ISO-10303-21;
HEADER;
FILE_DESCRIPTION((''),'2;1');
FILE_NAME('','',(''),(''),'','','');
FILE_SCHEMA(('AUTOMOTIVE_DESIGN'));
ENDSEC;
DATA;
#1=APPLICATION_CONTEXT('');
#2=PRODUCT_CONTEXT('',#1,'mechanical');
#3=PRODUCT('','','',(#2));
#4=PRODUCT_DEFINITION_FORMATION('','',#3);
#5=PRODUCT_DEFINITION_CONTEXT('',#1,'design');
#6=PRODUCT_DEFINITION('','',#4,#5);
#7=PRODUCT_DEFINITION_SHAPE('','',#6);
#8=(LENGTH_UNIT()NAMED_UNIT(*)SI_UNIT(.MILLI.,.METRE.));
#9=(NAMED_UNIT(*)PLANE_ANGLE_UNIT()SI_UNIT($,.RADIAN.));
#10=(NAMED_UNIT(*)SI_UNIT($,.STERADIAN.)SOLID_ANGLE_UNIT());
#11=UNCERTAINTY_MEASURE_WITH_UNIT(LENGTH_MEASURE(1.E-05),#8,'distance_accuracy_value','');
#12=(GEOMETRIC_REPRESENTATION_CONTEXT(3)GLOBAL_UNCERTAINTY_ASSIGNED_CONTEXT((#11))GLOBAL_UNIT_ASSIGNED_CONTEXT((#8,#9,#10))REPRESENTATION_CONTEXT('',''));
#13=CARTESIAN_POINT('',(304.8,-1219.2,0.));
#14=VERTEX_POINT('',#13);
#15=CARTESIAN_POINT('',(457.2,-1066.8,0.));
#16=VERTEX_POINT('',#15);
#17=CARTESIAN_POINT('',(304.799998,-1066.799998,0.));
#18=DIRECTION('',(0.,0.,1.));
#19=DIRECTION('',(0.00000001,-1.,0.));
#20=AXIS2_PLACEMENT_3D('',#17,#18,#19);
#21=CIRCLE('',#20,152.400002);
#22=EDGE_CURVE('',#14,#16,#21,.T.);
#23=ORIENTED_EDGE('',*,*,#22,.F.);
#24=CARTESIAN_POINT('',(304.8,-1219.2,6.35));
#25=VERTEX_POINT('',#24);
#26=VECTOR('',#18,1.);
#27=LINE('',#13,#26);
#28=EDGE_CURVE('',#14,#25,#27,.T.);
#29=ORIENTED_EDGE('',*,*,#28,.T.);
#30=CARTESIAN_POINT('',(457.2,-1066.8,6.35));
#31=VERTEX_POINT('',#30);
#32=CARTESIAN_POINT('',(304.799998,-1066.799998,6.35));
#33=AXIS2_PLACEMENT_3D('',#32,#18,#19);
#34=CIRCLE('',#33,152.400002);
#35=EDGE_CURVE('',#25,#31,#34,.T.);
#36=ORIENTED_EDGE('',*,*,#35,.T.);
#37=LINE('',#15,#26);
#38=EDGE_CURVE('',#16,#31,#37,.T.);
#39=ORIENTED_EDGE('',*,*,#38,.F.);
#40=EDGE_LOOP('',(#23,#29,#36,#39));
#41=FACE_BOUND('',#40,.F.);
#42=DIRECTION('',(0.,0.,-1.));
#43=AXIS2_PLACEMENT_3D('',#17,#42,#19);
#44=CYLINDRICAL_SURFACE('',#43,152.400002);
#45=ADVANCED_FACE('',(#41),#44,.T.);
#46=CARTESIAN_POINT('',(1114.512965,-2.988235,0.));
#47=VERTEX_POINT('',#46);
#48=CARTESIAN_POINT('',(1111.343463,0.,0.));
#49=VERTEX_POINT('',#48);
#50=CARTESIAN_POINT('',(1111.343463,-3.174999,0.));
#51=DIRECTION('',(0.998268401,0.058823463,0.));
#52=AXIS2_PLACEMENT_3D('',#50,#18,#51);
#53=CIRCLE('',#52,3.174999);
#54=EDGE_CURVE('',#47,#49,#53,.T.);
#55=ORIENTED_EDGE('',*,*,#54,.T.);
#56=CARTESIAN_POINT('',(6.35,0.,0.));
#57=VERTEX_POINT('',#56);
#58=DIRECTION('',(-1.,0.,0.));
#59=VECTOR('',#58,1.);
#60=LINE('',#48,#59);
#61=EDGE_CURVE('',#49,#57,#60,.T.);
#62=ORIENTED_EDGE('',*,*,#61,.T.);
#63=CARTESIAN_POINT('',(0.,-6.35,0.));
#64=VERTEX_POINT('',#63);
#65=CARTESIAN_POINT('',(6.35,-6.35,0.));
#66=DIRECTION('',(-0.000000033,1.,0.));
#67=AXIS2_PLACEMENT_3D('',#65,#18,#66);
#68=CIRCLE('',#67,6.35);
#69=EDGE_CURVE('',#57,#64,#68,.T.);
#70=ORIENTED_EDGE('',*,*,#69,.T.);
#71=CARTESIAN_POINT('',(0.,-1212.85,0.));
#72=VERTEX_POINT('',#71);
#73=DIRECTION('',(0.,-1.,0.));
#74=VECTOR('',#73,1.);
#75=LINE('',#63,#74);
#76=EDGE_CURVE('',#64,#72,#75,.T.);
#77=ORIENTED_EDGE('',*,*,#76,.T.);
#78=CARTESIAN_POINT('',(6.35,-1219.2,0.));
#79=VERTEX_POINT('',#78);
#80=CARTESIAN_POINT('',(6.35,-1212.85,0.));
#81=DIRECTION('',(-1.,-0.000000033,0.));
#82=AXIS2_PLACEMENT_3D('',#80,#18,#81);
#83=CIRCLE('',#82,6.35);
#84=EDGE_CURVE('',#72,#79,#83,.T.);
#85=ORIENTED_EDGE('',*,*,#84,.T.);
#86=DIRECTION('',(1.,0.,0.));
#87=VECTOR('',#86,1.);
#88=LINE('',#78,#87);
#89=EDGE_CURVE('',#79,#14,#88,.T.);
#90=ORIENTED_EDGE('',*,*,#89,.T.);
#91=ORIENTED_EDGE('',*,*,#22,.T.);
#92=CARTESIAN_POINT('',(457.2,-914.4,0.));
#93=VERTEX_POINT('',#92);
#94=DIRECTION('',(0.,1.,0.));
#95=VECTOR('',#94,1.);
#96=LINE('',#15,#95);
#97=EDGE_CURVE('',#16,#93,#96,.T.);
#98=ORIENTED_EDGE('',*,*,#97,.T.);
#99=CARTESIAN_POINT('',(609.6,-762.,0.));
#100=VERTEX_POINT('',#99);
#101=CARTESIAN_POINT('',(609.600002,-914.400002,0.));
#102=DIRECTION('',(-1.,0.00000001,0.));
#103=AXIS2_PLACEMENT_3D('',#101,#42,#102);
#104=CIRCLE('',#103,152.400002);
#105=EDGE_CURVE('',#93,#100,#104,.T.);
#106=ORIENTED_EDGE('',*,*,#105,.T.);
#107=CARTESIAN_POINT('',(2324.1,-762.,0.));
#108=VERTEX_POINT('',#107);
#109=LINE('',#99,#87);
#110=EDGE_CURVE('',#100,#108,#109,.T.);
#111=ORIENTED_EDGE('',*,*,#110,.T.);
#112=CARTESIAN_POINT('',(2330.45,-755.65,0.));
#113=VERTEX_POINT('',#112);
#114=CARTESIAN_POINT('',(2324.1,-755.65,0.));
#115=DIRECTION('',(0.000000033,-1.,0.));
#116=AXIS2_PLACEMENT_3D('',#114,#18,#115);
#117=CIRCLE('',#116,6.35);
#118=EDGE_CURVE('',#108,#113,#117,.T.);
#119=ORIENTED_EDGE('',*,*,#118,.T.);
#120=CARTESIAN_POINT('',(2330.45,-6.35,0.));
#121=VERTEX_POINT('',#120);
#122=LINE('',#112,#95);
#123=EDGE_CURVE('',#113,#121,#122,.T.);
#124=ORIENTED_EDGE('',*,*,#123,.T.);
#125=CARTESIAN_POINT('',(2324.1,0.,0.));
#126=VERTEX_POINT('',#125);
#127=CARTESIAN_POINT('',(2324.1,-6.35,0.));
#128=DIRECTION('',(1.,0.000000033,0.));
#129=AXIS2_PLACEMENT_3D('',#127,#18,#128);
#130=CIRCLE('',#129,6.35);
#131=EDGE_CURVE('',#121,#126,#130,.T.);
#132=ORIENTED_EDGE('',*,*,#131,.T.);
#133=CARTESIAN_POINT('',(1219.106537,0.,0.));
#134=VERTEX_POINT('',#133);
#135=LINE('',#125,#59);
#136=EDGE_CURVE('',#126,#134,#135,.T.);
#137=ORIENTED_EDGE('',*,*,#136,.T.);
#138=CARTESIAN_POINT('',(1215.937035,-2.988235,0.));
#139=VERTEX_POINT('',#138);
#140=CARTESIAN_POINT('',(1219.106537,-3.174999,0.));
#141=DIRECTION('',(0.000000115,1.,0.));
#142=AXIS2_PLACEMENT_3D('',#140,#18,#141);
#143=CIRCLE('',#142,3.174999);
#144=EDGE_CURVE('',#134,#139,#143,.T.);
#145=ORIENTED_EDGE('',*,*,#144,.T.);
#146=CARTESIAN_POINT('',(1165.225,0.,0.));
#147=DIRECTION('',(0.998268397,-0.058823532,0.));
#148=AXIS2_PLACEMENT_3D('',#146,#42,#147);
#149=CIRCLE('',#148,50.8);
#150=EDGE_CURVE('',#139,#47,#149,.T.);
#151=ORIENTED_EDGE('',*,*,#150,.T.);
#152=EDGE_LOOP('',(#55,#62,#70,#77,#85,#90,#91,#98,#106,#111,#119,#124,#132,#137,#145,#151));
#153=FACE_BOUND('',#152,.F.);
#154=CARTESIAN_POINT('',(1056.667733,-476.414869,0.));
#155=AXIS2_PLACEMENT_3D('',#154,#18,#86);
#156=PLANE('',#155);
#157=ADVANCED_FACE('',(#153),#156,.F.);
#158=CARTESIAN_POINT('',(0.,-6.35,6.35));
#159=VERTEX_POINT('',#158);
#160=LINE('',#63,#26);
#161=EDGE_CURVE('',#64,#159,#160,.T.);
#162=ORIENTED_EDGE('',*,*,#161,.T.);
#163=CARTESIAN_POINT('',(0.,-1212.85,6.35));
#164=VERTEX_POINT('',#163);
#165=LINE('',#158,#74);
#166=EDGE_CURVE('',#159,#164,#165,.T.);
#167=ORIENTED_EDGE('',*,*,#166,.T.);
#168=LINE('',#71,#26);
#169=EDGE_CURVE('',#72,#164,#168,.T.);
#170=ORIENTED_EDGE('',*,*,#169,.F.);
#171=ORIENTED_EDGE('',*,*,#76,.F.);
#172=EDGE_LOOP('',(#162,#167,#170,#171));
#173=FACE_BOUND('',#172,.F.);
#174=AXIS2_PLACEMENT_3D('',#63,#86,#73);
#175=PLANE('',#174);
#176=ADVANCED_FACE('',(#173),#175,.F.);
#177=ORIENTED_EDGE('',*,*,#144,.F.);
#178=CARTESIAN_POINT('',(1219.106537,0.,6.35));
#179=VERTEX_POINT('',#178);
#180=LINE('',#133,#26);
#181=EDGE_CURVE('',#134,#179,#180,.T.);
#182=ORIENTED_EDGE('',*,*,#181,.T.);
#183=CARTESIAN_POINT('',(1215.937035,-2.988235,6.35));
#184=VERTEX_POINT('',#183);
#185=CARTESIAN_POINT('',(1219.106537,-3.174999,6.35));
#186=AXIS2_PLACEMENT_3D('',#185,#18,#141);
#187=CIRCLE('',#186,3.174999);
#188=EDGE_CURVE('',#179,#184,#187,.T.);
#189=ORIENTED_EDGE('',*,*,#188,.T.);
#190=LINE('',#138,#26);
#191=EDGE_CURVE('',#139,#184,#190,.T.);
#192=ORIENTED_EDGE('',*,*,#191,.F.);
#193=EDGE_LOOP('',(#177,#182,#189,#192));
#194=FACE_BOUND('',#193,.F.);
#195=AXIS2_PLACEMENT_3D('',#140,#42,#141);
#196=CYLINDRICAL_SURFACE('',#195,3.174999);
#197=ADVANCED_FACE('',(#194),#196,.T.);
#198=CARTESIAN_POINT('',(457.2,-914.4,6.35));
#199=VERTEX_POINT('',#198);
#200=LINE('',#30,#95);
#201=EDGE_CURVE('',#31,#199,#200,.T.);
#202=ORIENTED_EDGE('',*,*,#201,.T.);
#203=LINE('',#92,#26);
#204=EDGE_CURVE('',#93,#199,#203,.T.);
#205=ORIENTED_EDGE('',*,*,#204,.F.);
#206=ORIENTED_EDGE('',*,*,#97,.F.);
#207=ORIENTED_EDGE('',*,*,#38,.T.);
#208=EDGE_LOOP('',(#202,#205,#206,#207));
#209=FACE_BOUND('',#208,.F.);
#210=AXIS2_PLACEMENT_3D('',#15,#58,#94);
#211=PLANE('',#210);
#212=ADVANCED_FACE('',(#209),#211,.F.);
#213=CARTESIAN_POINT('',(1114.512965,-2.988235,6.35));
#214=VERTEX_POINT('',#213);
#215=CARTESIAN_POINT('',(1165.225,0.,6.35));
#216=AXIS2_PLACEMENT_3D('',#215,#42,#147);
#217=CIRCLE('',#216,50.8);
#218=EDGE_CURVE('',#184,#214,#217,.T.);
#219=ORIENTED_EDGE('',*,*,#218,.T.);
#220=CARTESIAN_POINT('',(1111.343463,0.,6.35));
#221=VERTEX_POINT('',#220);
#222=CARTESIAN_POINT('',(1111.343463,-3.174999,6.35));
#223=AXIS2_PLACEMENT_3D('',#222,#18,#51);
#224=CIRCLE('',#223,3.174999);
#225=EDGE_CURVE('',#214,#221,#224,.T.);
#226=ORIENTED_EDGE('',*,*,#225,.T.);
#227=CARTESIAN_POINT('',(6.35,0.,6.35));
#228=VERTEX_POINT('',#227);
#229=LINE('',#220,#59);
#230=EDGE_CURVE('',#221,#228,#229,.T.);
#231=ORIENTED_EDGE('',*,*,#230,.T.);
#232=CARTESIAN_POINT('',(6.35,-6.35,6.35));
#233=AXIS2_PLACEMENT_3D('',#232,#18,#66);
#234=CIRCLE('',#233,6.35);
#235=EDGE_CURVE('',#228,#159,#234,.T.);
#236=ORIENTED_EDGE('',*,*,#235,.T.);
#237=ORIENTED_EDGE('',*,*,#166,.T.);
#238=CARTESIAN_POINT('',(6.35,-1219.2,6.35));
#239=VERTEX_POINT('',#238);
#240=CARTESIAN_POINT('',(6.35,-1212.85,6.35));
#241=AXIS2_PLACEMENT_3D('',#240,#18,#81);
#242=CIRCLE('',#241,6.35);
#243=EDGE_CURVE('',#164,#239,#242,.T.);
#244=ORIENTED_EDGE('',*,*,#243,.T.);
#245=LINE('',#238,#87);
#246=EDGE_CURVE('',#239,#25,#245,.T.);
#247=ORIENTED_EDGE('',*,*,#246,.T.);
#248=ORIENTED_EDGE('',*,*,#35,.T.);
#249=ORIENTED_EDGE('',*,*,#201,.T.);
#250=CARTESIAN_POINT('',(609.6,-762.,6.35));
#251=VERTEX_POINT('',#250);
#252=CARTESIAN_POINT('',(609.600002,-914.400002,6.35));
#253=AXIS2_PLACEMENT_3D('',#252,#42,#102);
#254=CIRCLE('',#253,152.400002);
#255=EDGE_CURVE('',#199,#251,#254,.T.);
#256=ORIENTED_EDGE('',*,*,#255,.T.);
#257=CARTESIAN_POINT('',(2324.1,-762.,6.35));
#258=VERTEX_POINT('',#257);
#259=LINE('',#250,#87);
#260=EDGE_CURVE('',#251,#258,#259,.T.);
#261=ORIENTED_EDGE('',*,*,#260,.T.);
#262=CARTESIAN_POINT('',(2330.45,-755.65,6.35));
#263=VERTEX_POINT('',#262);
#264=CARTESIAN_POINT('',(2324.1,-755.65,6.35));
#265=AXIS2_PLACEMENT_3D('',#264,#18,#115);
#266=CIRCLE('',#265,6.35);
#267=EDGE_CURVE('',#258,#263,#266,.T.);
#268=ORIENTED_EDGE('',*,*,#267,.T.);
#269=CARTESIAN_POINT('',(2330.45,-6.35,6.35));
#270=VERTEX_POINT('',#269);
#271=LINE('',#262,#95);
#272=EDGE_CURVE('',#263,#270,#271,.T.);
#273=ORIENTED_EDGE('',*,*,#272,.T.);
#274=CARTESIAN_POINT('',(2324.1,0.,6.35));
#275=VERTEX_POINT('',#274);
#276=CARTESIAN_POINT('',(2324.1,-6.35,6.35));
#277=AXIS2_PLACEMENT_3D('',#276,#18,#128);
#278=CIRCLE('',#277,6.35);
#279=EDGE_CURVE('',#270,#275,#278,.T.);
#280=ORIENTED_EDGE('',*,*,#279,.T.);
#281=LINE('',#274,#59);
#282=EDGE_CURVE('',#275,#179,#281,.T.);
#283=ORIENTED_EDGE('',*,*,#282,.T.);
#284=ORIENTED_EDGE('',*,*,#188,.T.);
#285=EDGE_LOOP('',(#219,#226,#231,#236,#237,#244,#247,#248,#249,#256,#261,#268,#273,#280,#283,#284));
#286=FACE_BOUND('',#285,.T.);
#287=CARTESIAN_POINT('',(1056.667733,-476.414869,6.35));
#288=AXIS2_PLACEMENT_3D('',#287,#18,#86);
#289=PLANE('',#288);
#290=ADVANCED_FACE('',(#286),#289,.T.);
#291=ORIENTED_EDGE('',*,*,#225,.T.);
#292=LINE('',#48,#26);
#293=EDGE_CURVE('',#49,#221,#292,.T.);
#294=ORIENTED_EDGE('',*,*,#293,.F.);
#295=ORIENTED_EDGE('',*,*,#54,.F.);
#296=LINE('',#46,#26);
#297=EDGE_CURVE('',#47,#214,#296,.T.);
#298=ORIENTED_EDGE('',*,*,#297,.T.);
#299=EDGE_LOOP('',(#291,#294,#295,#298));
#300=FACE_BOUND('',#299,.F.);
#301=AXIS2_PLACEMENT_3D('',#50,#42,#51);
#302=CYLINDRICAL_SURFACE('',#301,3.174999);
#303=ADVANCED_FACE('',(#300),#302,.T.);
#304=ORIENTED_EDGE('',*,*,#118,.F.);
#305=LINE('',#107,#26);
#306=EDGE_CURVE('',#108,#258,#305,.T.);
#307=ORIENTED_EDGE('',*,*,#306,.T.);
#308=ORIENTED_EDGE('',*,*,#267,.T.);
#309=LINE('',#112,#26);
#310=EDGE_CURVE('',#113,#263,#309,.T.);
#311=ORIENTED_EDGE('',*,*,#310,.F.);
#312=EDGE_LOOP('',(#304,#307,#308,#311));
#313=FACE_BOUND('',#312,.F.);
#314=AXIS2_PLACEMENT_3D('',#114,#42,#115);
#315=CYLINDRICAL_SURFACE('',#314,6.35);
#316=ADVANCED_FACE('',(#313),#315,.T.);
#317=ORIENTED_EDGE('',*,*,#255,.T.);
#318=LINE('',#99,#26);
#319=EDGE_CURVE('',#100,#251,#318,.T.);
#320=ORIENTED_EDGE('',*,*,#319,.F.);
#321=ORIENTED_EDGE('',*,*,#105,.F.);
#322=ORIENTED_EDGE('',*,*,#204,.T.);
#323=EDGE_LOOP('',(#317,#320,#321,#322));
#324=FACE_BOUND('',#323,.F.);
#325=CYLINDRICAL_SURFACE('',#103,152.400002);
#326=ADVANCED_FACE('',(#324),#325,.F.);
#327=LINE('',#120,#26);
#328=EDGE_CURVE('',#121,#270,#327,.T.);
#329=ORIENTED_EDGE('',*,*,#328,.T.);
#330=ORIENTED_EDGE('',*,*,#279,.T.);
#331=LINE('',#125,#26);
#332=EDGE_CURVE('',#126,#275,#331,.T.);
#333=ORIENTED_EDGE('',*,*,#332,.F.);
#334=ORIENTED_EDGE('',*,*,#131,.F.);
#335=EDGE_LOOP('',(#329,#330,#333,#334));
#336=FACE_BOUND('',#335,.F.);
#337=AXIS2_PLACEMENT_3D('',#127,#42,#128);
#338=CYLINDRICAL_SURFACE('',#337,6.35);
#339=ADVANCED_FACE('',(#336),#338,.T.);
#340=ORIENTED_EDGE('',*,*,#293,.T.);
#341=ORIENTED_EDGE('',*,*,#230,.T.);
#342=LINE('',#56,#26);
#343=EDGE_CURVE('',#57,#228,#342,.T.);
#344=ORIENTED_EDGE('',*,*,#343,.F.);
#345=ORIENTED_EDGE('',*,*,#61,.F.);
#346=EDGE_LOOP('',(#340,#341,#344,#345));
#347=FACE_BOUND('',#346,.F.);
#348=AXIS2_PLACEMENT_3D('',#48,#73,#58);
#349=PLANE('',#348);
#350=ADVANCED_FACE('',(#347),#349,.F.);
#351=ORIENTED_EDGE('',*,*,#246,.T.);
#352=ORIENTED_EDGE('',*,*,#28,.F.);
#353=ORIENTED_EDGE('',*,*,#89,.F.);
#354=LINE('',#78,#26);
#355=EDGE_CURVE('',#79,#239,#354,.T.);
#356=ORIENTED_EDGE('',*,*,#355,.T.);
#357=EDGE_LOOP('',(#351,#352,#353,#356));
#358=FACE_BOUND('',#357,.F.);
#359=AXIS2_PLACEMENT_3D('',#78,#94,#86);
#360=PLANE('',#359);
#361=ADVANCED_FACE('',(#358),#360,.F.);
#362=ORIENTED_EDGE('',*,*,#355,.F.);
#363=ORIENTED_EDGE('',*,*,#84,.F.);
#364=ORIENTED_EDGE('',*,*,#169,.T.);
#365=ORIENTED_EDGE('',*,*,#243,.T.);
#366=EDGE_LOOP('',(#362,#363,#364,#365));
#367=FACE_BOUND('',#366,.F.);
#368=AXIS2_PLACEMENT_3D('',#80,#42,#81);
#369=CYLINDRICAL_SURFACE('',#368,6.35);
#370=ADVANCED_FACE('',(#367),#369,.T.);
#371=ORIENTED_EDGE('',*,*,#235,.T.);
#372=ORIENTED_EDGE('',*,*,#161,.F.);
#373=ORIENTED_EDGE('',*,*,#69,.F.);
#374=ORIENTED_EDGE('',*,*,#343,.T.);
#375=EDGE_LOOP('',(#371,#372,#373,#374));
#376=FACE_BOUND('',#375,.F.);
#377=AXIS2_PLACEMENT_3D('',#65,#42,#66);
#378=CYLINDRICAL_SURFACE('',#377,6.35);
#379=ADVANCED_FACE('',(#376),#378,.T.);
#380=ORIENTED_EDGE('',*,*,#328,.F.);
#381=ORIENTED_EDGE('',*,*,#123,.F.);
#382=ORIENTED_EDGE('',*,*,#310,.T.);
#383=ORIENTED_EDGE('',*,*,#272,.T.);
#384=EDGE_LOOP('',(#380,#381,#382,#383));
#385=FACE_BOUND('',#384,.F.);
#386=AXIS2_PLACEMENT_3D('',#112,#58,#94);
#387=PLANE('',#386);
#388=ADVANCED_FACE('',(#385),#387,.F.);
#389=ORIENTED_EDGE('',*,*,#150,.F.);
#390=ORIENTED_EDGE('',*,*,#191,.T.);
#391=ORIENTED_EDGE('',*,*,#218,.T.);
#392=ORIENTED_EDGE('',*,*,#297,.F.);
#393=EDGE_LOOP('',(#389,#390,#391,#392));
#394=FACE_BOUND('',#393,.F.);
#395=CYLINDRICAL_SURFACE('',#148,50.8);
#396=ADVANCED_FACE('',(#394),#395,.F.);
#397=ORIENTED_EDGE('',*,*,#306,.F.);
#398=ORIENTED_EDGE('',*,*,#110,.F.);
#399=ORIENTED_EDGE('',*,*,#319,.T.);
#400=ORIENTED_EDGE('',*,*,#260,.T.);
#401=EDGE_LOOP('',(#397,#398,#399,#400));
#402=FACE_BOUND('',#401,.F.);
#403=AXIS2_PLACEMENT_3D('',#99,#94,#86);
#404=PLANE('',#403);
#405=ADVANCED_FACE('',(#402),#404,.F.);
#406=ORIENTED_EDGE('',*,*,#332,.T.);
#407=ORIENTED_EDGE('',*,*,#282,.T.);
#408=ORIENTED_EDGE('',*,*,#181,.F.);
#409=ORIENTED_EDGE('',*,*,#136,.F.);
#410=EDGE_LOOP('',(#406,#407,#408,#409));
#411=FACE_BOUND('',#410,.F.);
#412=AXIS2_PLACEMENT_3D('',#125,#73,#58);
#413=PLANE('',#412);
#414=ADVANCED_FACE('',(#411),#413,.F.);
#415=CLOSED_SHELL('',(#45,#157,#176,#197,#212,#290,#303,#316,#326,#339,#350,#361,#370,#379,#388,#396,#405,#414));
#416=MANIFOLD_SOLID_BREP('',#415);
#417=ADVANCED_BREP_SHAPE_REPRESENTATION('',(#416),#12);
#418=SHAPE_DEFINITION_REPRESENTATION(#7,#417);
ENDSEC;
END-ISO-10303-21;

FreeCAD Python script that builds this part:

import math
import FreeCAD as App
import Part
import Sketcher

V = App.Vector
Q = App.Units.Quantity

doc = App.newDocument("Part")
body = doc.addObject("PartDesign::Body", "Body")

# Sketch on XY plane
sketch1 = doc.addObject("Sketcher::SketchObject", "Sketch")
body.addObject(sketch1)
sketch1.AttachmentSupport = (doc.XY_Plane, [""])
sketch1.MapMode = "FlatFace"
sketch1.addGeometry(Part.LineSegment(V(1111.3, 0, 0), V(6.3, 0, 0)), False)
sketch1.addGeometry(Part.ArcOfCircle(Part.Circle(V(6.4, -6.4, 0), V(0, 0, 1), 6.4), math.radians(90), math.radians(180)), False)
sketch1.addGeometry(Part.LineSegment(V(0, -6.3, 0), V(0, -1212.8, 0)), False)
sketch1.addGeometry(Part.ArcOfCircle(Part.Circle(V(6.4, -1212.8, 0), V(0, 0, 1), 6.4), math.radians(-180), math.radians(-90)), False)
sketch1.addGeometry(Part.LineSegment(V(6.3, -1219.2, 0), V(304.8, -1219.2, 0)), False)
sketch1.addGeometry(Part.ArcOfCircle(Part.Circle(V(304.8, -1066.8, 0), V(0, 0, 1), 152.4), math.radians(-90), math.radians(0)), False)
sketch1.addGeometry(Part.LineSegment(V(457.2, -1066.8, 0), V(457.2, -914.4, 0)), False)
sketch1.addGeometry(Part.ArcOfCircle(Part.Circle(V(609.6, -914.4, 0), V(0, 0, 1), 152.4), math.radians(90), math.radians(180)), False)
sketch1.addGeometry(Part.LineSegment(V(609.6, -762, 0), V(2324.1, -762, 0)), False)
sketch1.addGeometry(Part.ArcOfCircle(Part.Circle(V(2324.1, -755.6, 0), V(0, 0, 1), 6.4), math.radians(-90), math.radians(0)), False)
sketch1.addGeometry(Part.LineSegment(V(2330.4, -755.6, 0), V(2330.4, -6.3, 0)), False)
sketch1.addGeometry(Part.ArcOfCircle(Part.Circle(V(2324.1, -6.4, 0), V(0, 0, 1), 6.4), math.radians(0), math.radians(90)), False)
sketch1.addGeometry(Part.LineSegment(V(2324.1, 0, 0), V(1219.1, 0, 0)), False)
sketch1.addGeometry(Part.ArcOfCircle(Part.Circle(V(1219.1, -3.2, 0), V(0, 0, 1), 3.2), math.radians(90), math.radians(177)), False)
sketch1.addGeometry(Part.ArcOfCircle(Part.Circle(V(1165.2, 0, 0), V(0, 0, 1), 50.8), math.radians(-177), math.radians(-3)), False)
sketch1.addGeometry(Part.ArcOfCircle(Part.Circle(V(1111.3, -3.2, 0), V(0, 0, 1), 3.2), math.radians(3), math.radians(90)), False)
sketch1.addConstraint(Sketcher.Constraint("Tangent", 0, 2, 1, 1))
sketch1.addConstraint(Sketcher.Constraint("Tangent", 1, 2, 2, 1))
sketch1.addConstraint(Sketcher.Constraint("Tangent", 2, 2, 3, 1))
sketch1.addConstraint(Sketcher.Constraint("Tangent", 3, 2, 4, 1))
sketch1.addConstraint(Sketcher.Constraint("Tangent", 4, 2, 5, 1))
sketch1.addConstraint(Sketcher.Constraint("Tangent", 5, 2, 6, 1))
sketch1.addConstraint(Sketcher.Constraint("Tangent", 6, 2, 7, 2))
sketch1.addConstraint(Sketcher.Constraint("Tangent", 7, 1, 8, 1))
sketch1.addConstraint(Sketcher.Constraint("Tangent", 8, 2, 9, 1))
sketch1.addConstraint(Sketcher.Constraint("Tangent", 9, 2, 10, 1))
sketch1.addConstraint(Sketcher.Constraint("Tangent", 10, 2, 11, 1))
sketch1.addConstraint(Sketcher.Constraint("Tangent", 11, 2, 12, 1))
sketch1.addConstraint(Sketcher.Constraint("Tangent", 12, 2, 13, 1))
sketch1.addConstraint(Sketcher.Constraint("Tangent", 13, 2, 14, 2))
sketch1.addConstraint(Sketcher.Constraint("Tangent", 14, 1, 15, 1))
sketch1.addConstraint(Sketcher.Constraint("Tangent", 15, 2, 0, 1))
sketch1.addConstraint(Sketcher.Constraint("Horizontal", 0))
sketch1.addConstraint(Sketcher.Constraint("Vertical", 2))
sketch1.addConstraint(Sketcher.Constraint("Horizontal", 4))
sketch1.addConstraint(Sketcher.Constraint("Vertical", 6))
sketch1.addConstraint(Sketcher.Constraint("Horizontal", 8))
sketch1.addConstraint(Sketcher.Constraint("Vertical", 10))
sketch1.addConstraint(Sketcher.Constraint("Horizontal", 12))
sketch1.addConstraint(Sketcher.Constraint("Equal", 1, 3))
sketch1.addConstraint(Sketcher.Constraint("Equal", 5, 7))
sketch1.addConstraint(Sketcher.Constraint("Equal", 3, 9))
sketch1.addConstraint(Sketcher.Constraint("Equal", 9, 11))
sketch1.addConstraint(Sketcher.Constraint("Equal", 13, 15))
sketch1.addConstraint(Sketcher.Constraint("PointOnObject", 14, 3, -1))
sketch1.addConstraint(Sketcher.Constraint("PointOnObject", 0, 2, -1))
sketch1.addConstraint(Sketcher.Constraint("PointOnObject", 1, 2, -2))
sketch1.addConstraint(Sketcher.Constraint("PointOnObject", 11, 2, -1))
sketch1.addConstraint(Sketcher.Constraint("Equal", 0, 12))
sketch1.addConstraint(Sketcher.Constraint("Radius", 5, Q("6.0000001 in")))
sketch1.addConstraint(Sketcher.Constraint("Radius", 14, Q("2 in")))
sketch1.addConstraint(Sketcher.Constraint("DistanceY", 6, 1, 6, 2, Q("6 in")))
sketch1.addConstraint(Sketcher.Constraint("Radius", 1, Q("0.25 in")))
sketch1.addConstraint(Sketcher.Constraint("DistanceX", 8, 1, 8, 2, Q("67.5 in")))
sketch1.addConstraint(Sketcher.Constraint("DistanceY", 2, 2, 2, 1, Q("47.5 in")))
sketch1.addConstraint(Sketcher.Constraint("DistanceX", -1, 1, 5, 3, Q("11.9999999 in")))
sketch1.addConstraint(Sketcher.Constraint("Radius", 13, Q("0.125 in")))
pad1 = doc.addObject("PartDesign::Pad", "Pad")
body.addObject(pad1)
pad1.Profile = sketch1
pad1.Length = Q("0.25 in")

doc.recompute()
